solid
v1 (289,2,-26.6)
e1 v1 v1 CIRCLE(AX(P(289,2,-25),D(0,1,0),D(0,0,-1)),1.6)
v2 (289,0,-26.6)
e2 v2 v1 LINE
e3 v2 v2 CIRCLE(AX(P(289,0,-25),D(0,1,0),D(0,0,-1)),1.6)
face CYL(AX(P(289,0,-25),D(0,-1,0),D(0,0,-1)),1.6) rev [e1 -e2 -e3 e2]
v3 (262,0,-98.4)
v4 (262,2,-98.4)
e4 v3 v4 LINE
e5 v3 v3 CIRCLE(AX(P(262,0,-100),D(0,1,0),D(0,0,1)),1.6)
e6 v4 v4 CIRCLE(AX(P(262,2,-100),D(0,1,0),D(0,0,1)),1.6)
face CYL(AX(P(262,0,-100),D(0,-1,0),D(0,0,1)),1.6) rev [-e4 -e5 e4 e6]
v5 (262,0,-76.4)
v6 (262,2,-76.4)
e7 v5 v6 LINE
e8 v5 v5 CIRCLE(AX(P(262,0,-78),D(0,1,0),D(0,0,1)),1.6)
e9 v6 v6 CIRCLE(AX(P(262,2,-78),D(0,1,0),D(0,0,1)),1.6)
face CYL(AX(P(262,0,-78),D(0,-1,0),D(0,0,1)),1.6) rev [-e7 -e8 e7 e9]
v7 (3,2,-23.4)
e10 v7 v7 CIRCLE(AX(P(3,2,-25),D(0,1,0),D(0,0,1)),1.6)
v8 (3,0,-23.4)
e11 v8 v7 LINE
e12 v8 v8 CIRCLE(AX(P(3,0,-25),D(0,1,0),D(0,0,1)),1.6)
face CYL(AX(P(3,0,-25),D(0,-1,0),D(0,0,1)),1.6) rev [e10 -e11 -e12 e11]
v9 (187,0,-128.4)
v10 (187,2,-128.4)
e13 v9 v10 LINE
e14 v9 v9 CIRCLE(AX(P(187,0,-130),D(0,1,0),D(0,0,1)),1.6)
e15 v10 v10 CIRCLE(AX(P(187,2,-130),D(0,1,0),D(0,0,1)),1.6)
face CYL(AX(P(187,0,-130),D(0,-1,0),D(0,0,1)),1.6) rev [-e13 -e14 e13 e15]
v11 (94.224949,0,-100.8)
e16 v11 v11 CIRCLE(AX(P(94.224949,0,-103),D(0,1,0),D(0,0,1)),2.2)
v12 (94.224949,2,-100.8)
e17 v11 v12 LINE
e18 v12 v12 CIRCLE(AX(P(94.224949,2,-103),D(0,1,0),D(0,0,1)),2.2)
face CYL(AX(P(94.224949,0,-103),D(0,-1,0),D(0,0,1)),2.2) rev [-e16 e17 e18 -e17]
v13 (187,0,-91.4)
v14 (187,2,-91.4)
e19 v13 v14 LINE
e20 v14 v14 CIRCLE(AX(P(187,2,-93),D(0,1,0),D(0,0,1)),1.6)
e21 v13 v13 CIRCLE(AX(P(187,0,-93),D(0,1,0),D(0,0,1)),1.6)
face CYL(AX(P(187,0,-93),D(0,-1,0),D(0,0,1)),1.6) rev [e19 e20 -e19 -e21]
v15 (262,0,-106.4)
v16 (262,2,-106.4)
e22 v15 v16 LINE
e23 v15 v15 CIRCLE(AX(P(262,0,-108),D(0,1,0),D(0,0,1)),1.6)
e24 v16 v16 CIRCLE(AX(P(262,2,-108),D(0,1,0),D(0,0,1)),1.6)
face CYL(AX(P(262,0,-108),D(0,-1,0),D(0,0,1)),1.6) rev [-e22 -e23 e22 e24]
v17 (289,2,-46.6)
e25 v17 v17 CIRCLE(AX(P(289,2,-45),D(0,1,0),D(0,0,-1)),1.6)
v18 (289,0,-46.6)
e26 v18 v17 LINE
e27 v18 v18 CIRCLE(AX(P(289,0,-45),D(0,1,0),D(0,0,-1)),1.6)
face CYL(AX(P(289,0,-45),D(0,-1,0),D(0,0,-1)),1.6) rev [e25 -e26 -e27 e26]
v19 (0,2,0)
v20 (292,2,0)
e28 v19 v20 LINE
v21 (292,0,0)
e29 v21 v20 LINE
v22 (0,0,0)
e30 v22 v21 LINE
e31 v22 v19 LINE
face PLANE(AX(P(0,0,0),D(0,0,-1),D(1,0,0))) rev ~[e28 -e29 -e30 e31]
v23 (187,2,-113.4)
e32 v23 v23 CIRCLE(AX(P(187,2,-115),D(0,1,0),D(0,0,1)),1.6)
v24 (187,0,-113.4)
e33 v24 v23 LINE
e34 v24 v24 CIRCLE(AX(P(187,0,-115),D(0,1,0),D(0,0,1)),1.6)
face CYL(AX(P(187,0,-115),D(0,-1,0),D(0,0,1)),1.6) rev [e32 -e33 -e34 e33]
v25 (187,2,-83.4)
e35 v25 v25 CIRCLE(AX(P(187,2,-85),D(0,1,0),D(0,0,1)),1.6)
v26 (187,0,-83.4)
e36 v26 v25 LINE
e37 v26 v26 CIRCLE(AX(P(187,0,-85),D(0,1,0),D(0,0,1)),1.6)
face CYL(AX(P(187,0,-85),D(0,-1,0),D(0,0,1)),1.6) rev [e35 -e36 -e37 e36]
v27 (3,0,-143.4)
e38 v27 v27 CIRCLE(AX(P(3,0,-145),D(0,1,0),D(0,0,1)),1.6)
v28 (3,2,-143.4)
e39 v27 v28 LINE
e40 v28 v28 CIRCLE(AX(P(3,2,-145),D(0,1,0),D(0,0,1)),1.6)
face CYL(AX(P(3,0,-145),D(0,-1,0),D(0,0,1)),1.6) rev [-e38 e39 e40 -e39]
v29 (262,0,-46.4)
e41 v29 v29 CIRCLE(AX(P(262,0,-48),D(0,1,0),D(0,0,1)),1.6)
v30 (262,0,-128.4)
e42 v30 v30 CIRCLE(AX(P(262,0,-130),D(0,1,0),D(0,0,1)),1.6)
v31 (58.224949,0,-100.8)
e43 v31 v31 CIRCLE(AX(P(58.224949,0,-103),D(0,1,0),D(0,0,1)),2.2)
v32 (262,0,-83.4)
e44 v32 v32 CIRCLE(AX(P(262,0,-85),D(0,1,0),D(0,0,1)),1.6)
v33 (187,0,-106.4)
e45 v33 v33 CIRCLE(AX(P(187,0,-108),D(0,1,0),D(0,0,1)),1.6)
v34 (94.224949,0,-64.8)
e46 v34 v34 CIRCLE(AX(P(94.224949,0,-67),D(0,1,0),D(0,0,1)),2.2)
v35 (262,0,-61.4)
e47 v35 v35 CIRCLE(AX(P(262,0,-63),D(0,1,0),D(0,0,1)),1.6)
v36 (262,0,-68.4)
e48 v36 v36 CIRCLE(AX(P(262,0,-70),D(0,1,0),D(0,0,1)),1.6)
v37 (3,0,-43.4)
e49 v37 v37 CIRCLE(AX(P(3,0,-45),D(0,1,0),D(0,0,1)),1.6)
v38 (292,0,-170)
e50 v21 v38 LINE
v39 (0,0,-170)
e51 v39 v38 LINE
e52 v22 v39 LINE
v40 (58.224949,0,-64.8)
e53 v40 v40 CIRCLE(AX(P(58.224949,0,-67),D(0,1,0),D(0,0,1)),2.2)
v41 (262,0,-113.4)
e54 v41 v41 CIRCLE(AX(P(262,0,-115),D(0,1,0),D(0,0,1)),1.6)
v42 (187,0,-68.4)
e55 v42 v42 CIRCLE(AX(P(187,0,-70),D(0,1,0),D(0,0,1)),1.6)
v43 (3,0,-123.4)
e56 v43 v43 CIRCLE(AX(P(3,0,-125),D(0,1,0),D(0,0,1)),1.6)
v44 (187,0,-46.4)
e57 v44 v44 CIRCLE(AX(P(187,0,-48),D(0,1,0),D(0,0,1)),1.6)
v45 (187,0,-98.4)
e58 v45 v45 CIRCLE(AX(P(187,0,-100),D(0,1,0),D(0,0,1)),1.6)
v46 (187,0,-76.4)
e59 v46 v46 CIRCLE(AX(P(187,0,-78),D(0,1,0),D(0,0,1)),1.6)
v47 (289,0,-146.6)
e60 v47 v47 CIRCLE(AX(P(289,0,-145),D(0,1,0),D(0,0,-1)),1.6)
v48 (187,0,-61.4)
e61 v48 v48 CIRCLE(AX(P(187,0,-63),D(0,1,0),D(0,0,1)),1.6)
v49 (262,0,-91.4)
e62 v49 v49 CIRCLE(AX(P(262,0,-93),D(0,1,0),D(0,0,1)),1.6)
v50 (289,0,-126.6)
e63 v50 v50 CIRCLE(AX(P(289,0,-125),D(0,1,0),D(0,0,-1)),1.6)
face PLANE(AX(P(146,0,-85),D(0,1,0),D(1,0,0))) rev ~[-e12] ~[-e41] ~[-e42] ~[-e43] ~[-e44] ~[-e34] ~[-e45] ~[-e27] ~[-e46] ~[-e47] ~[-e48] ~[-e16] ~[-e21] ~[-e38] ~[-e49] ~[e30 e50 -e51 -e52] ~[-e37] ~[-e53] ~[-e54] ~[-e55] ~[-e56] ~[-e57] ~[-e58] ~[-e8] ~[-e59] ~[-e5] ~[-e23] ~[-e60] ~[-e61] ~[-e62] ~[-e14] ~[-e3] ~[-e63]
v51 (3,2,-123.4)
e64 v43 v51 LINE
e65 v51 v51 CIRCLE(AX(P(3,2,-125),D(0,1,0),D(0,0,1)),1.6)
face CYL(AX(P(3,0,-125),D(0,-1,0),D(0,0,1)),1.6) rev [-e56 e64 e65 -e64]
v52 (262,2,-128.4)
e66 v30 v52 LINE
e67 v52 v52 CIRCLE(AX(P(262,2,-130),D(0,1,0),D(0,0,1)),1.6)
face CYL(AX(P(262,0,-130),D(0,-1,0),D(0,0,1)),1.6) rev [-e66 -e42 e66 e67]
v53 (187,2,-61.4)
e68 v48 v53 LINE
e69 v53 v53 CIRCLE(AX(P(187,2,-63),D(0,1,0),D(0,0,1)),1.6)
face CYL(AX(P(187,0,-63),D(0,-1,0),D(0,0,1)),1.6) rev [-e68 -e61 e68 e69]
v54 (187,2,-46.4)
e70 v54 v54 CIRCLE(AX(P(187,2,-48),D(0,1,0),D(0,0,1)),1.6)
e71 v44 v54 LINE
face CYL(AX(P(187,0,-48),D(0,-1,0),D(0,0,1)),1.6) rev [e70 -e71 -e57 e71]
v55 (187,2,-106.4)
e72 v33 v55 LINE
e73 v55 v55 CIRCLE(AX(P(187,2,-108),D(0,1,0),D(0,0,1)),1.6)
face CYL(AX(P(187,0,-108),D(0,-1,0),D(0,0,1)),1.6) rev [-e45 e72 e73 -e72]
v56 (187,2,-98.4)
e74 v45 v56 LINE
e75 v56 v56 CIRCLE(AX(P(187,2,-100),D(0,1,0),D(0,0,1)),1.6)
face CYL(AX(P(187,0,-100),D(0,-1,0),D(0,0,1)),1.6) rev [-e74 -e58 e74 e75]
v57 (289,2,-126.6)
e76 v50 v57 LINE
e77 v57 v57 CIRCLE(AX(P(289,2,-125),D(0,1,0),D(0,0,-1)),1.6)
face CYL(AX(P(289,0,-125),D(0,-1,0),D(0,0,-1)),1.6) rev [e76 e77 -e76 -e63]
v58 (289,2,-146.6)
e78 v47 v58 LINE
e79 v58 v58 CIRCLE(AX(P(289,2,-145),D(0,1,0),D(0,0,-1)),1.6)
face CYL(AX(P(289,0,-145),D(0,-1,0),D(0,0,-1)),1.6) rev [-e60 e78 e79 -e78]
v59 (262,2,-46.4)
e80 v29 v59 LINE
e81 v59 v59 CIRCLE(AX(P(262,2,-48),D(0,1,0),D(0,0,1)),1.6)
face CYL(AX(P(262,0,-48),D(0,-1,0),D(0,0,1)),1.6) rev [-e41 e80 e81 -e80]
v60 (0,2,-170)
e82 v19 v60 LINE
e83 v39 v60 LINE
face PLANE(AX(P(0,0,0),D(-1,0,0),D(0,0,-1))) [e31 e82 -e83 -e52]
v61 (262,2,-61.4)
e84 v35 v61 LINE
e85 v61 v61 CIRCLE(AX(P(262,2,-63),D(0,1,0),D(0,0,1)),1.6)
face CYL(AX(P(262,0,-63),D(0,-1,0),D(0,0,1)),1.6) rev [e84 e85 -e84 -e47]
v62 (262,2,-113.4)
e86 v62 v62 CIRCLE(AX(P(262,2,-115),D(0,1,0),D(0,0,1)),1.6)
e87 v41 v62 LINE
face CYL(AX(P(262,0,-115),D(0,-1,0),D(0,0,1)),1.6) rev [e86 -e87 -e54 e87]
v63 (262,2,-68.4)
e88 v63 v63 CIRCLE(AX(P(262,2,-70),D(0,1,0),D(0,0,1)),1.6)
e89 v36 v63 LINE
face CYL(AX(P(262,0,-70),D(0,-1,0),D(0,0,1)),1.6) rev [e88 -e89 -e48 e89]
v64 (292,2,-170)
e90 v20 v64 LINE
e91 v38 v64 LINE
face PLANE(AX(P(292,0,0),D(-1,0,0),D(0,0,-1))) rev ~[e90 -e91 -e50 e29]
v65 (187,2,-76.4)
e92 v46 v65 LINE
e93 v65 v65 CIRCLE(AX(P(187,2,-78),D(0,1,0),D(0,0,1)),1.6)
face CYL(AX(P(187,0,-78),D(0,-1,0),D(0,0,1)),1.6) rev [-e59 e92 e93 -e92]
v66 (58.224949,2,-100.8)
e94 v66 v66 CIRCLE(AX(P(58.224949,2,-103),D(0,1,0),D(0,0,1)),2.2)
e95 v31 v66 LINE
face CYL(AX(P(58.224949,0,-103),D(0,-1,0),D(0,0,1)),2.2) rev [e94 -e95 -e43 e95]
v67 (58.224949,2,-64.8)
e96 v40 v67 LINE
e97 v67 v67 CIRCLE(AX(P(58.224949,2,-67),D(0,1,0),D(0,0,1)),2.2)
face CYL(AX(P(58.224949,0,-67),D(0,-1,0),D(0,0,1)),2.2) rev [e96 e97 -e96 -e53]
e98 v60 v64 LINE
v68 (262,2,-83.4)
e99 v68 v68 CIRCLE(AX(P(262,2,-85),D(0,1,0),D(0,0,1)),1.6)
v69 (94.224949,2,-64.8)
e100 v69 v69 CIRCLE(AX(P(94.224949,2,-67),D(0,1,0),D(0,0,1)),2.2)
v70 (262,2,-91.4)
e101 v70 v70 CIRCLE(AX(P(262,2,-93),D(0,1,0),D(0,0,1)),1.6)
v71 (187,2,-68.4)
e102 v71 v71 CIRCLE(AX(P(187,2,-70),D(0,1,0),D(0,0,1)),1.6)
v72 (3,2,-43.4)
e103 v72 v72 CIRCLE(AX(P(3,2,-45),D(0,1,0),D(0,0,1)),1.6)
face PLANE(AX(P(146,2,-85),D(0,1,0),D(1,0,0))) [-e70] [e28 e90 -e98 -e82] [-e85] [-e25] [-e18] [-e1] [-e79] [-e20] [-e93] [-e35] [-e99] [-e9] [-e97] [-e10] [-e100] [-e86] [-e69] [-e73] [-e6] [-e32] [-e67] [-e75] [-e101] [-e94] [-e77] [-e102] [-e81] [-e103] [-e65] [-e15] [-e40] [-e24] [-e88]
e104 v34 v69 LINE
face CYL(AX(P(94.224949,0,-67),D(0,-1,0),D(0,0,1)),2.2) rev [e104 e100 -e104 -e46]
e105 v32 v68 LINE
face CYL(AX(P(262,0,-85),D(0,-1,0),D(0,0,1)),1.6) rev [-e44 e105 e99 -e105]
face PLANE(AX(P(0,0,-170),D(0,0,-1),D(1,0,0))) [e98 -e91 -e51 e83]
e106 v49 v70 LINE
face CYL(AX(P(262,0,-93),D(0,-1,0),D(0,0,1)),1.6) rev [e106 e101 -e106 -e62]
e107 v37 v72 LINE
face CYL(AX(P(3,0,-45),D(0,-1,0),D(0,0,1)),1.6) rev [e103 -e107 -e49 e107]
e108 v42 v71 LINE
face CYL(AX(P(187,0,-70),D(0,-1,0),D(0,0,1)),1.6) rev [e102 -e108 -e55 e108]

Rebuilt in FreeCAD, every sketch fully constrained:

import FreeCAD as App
import Part
import Sketcher
from FreeCAD import Vector


def add_polygon(sketch, points):
    """Adds a closed chain of lines whose ends are joined by coincident constraints."""
    first, n = sketch.GeometryCount, len(points)
    for a, b in zip(points, points[1:] + points[:1]):
        sketch.addGeometry(Part.LineSegment(App.Vector(*a, 0), App.Vector(*b, 0)), False)
    for i in range(n):
        sketch.addConstraint(Sketcher.Constraint("Coincident", first + i, 2, first + (i + 1) % n, 1))

doc = App.newDocument("Part")
params = doc.addObject("Spreadsheet::Sheet", "Params")
for row, (alias, value) in enumerate([
    ("sketch1_diameter", "3.2 mm"),
    ("sketch1_diameter2", "4.4 mm"),
    ("sketch1_width", "292 mm"),
    ("sketch1_height", "170 mm"),
    ("pad1_length", "2 mm"),
], start=1):
    params.set(f"A{row}", alias)
    params.set(f"B{row}", "=" + value)
    params.setAlias(f"B{row}", alias)

body = doc.addObject("PartDesign::Body", "Body")

sketch1 = body.newObject("Sketcher::SketchObject", "Sketch")
sketch1.AttachmentSupport = (doc.getObject("XZ_Plane"), [""])
sketch1.MapMode = "FlatFace"
add_polygon(sketch1, [(0, -170), (0, 0), (292, 0), (292, -170)])
sketch1.addGeometry(Part.Circle(Vector(3, -25, 0), Vector(0, 0, 1), 1.6), False)
sketch1.addGeometry(Part.Circle(Vector(3, -45, 0), Vector(0, 0, 1), 1.6), False)
sketch1.addGeometry(Part.Circle(Vector(58.2, -67, 0), Vector(0, 0, 1), 2.2), False)
sketch1.addGeometry(Part.Circle(Vector(94.2, -67, 0), Vector(0, 0, 1), 2.2), False)
sketch1.addGeometry(Part.Circle(Vector(187, -48, 0), Vector(0, 0, 1), 1.6), False)
sketch1.addGeometry(Part.Circle(Vector(289, -25, 0), Vector(0, 0, 1), 1.6), False)
sketch1.addGeometry(Part.Circle(Vector(289, -45, 0), Vector(0, 0, 1), 1.6), False)
sketch1.addGeometry(Part.Circle(Vector(262, -48, 0), Vector(0, 0, 1), 1.6), False)
sketch1.addGeometry(Part.Circle(Vector(187, -63, 0), Vector(0, 0, 1), 1.6), False)
sketch1.addGeometry(Part.Circle(Vector(187, -70, 0), Vector(0, 0, 1), 1.6), False)
sketch1.addGeometry(Part.Circle(Vector(187, -78, 0), Vector(0, 0, 1), 1.6), False)
sketch1.addGeometry(Part.Circle(Vector(187, -85, 0), Vector(0, 0, 1), 1.6), False)
sketch1.addGeometry(Part.Circle(Vector(262, -63, 0), Vector(0, 0, 1), 1.6), False)
sketch1.addGeometry(Part.Circle(Vector(262, -70, 0), Vector(0, 0, 1), 1.6), False)
sketch1.addGeometry(Part.Circle(Vector(262, -78, 0), Vector(0, 0, 1), 1.6), False)
sketch1.addGeometry(Part.Circle(Vector(262, -85, 0), Vector(0, 0, 1), 1.6), False)
sketch1.addGeometry(Part.Circle(Vector(58.2, -103, 0), Vector(0, 0, 1), 2.2), False)
sketch1.addGeometry(Part.Circle(Vector(94.2, -103, 0), Vector(0, 0, 1), 2.2), False)
sketch1.addGeometry(Part.Circle(Vector(3, -125, 0), Vector(0, 0, 1), 1.6), False)
sketch1.addGeometry(Part.Circle(Vector(3, -145, 0), Vector(0, 0, 1), 1.6), False)
sketch1.addGeometry(Part.Circle(Vector(187, -93, 0), Vector(0, 0, 1), 1.6), False)
sketch1.addGeometry(Part.Circle(Vector(187, -100, 0), Vector(0, 0, 1), 1.6), False)
sketch1.addGeometry(Part.Circle(Vector(187, -108, 0), Vector(0, 0, 1), 1.6), False)
sketch1.addGeometry(Part.Circle(Vector(187, -115, 0), Vector(0, 0, 1), 1.6), False)
sketch1.addGeometry(Part.Circle(Vector(262, -93, 0), Vector(0, 0, 1), 1.6), False)
sketch1.addGeometry(Part.Circle(Vector(262, -100, 0), Vector(0, 0, 1), 1.6), False)
sketch1.addGeometry(Part.Circle(Vector(262, -108, 0), Vector(0, 0, 1), 1.6), False)
sketch1.addGeometry(Part.Circle(Vector(262, -115, 0), Vector(0, 0, 1), 1.6), False)
sketch1.addGeometry(Part.Circle(Vector(187, -130, 0), Vector(0, 0, 1), 1.6), False)
sketch1.addGeometry(Part.Circle(Vector(262, -130, 0), Vector(0, 0, 1), 1.6), False)
sketch1.addGeometry(Part.Circle(Vector(289, -125, 0), Vector(0, 0, 1), 1.6), False)
sketch1.addGeometry(Part.Circle(Vector(289, -145, 0), Vector(0, 0, 1), 1.6), False)
sketch1.addConstraint([
    Sketcher.Constraint("Vertical", 0),
    Sketcher.Constraint("Horizontal", 1),
    Sketcher.Constraint("Vertical", 2),
    Sketcher.Constraint("Horizontal", 3),
    Sketcher.Constraint("Coincident", 0, 2, -1, 1),
    Sketcher.Constraint("Equal", 4, 5),
    Sketcher.Constraint("Equal", 6, 7),
    Sketcher.Constraint("Equal", 5, 8),
    Sketcher.Constraint("Equal", 8, 9),
    Sketcher.Constraint("Equal", 9, 10),
    Sketcher.Constraint("Equal", 10, 11),
    Sketcher.Constraint("Equal", 11, 12),
    Sketcher.Constraint("Equal", 12, 13),
    Sketcher.Constraint("Equal", 13, 14),
    Sketcher.Constraint("Equal", 14, 15),
    Sketcher.Constraint("Equal", 15, 16),
    Sketcher.Constraint("Equal", 16, 17),
    Sketcher.Constraint("Equal", 17, 18),
    Sketcher.Constraint("Equal", 18, 19),
    Sketcher.Constraint("Equal", 7, 20),
    Sketcher.Constraint("Equal", 20, 21),
    Sketcher.Constraint("Equal", 19, 22),
    Sketcher.Constraint("Equal", 22, 23),
    Sketcher.Constraint("Equal", 23, 24),
    Sketcher.Constraint("Equal", 24, 25),
    Sketcher.Constraint("Equal", 25, 26),
    Sketcher.Constraint("Equal", 26, 27),
    Sketcher.Constraint("Equal", 27, 28),
    Sketcher.Constraint("Equal", 28, 29),
    Sketcher.Constraint("Equal", 29, 30),
    Sketcher.Constraint("Equal", 30, 31),
    Sketcher.Constraint("Equal", 31, 32),
    Sketcher.Constraint("Equal", 32, 33),
    Sketcher.Constraint("Equal", 33, 34),
    Sketcher.Constraint("Equal", 34, 35),
    Sketcher.Constraint("Horizontal", 6, 3, 7, 3),
    Sketcher.Constraint("Horizontal", 4, 3, 9, 3),
    Sketcher.Constraint("Horizontal", 5, 3, 10, 3),
    Sketcher.Constraint("Horizontal", 8, 3, 11, 3),
    Sketcher.Constraint("Horizontal", 12, 3, 16, 3),
    Sketcher.Constraint("Horizontal", 13, 3, 17, 3),
    Sketcher.Constraint("Horizontal", 14, 3, 18, 3),
    Sketcher.Constraint("Horizontal", 15, 3, 19, 3),
    Sketcher.Constraint("Horizontal", 20, 3, 21, 3),
    Sketcher.Constraint("Horizontal", 24, 3, 28, 3),
    Sketcher.Constraint("Horizontal", 25, 3, 29, 3),
    Sketcher.Constraint("Horizontal", 26, 3, 30, 3),
    Sketcher.Constraint("Horizontal", 27, 3, 31, 3),
    Sketcher.Constraint("Horizontal", 32, 3, 33, 3),
    Sketcher.Constraint("Horizontal", 22, 3, 34, 3),
    Sketcher.Constraint("Horizontal", 23, 3, 35, 3),
    Sketcher.Constraint("Vertical", 4, 3, 5, 3),
    Sketcher.Constraint("Vertical", 9, 3, 10, 3),
    Sketcher.Constraint("Vertical", 8, 3, 12, 3),
    Sketcher.Constraint("Vertical", 12, 3, 13, 3),
    Sketcher.Constraint("Vertical", 13, 3, 14, 3),
    Sketcher.Constraint("Vertical", 14, 3, 15, 3),
    Sketcher.Constraint("Vertical", 11, 3, 16, 3),
    Sketcher.Constraint("Vertical", 16, 3, 17, 3),
    Sketcher.Constraint("Vertical", 17, 3, 18, 3),
    Sketcher.Constraint("Vertical", 18, 3, 19, 3),
    Sketcher.Constraint("Vertical", 6, 3, 20, 3),
    Sketcher.Constraint("Vertical", 7, 3, 21, 3),
    Sketcher.Constraint("Vertical", 5, 3, 22, 3),
    Sketcher.Constraint("Vertical", 22, 3, 23, 3),
    Sketcher.Constraint("Vertical", 15, 3, 24, 3),
    Sketcher.Constraint("Vertical", 24, 3, 25, 3),
    Sketcher.Constraint("Vertical", 25, 3, 26, 3),
    Sketcher.Constraint("Vertical", 26, 3, 27, 3),
    Sketcher.Constraint("Vertical", 19, 3, 28, 3),
    Sketcher.Constraint("Vertical", 28, 3, 29, 3),
    Sketcher.Constraint("Vertical", 29, 3, 30, 3),
    Sketcher.Constraint("Vertical", 30, 3, 31, 3),
    Sketcher.Constraint("Vertical", 27, 3, 32, 3),
    Sketcher.Constraint("Vertical", 31, 3, 33, 3),
    Sketcher.Constraint("Vertical", 10, 3, 34, 3),
    Sketcher.Constraint("Vertical", 34, 3, 35, 3),
    Sketcher.Constraint("Diameter", 4, 3.2),
    Sketcher.Constraint("Diameter", 6, 4.4),
    Sketcher.Constraint("DistanceX", 1, 1, 1, 2, 292.0),
    Sketcher.Constraint("DistanceY", 0, 1, 0, 2, 170.0),
    Sketcher.Constraint("DistanceX", -1, 1, 4, 3, 3.0),
    Sketcher.Constraint("DistanceY", 4, 3, -1, 1, 25.0),
    Sketcher.Constraint("DistanceY", 5, 3, -1, 1, 45.0),
    Sketcher.Constraint("DistanceY", 6, 3, -1, 1, 67.0),
    Sketcher.Constraint("DistanceX", -1, 1, 8, 3, 187.0),
    Sketcher.Constraint("DistanceY", 8, 3, -1, 1, 48.0),
    Sketcher.Constraint("DistanceX", -1, 1, 9, 3, 289.0),
    Sketcher.Constraint("DistanceX", -1, 1, 11, 3, 262.0),
    Sketcher.Constraint("DistanceY", 12, 3, -1, 1, 63.0),
    Sketcher.Constraint("DistanceY", 13, 3, -1, 1, 70.0),
    Sketcher.Constraint("DistanceY", 14, 3, -1, 1, 78.0),
    Sketcher.Constraint("DistanceY", 15, 3, -1, 1, 85.0),
    Sketcher.Constraint("DistanceY", 20, 3, -1, 1, 103.0),
    Sketcher.Constraint("DistanceY", 22, 3, -1, 1, 125.0),
    Sketcher.Constraint("DistanceY", 23, 3, -1, 1, 145.0),
    Sketcher.Constraint("DistanceY", 24, 3, -1, 1, 93.0),
    Sketcher.Constraint("DistanceY", 25, 3, -1, 1, 100.0),
    Sketcher.Constraint("DistanceY", 26, 3, -1, 1, 108.0),
    Sketcher.Constraint("DistanceY", 27, 3, -1, 1, 115.0),
    Sketcher.Constraint("DistanceY", 32, 3, -1, 1, 130.0),
    Sketcher.Constraint("DistanceX", 6, 3, 7, 3, 36.0),
    Sketcher.Constraint("DistanceX", -1, 1, 6, 3, 58.224949),
])
sketch1.setExpression("Constraints[81]", "Params.sketch1_diameter")
sketch1.setExpression("Constraints[82]", "Params.sketch1_diameter2")
sketch1.setExpression("Constraints[83]", "Params.sketch1_width")
sketch1.setExpression("Constraints[84]", "Params.sketch1_height")
pad1 = body.newObject("PartDesign::Pad", "Pad")
pad1.Profile = sketch1
pad1.setExpression("Length", "Params.pad1_length")
pad1.Reversed = True

doc.recompute()
